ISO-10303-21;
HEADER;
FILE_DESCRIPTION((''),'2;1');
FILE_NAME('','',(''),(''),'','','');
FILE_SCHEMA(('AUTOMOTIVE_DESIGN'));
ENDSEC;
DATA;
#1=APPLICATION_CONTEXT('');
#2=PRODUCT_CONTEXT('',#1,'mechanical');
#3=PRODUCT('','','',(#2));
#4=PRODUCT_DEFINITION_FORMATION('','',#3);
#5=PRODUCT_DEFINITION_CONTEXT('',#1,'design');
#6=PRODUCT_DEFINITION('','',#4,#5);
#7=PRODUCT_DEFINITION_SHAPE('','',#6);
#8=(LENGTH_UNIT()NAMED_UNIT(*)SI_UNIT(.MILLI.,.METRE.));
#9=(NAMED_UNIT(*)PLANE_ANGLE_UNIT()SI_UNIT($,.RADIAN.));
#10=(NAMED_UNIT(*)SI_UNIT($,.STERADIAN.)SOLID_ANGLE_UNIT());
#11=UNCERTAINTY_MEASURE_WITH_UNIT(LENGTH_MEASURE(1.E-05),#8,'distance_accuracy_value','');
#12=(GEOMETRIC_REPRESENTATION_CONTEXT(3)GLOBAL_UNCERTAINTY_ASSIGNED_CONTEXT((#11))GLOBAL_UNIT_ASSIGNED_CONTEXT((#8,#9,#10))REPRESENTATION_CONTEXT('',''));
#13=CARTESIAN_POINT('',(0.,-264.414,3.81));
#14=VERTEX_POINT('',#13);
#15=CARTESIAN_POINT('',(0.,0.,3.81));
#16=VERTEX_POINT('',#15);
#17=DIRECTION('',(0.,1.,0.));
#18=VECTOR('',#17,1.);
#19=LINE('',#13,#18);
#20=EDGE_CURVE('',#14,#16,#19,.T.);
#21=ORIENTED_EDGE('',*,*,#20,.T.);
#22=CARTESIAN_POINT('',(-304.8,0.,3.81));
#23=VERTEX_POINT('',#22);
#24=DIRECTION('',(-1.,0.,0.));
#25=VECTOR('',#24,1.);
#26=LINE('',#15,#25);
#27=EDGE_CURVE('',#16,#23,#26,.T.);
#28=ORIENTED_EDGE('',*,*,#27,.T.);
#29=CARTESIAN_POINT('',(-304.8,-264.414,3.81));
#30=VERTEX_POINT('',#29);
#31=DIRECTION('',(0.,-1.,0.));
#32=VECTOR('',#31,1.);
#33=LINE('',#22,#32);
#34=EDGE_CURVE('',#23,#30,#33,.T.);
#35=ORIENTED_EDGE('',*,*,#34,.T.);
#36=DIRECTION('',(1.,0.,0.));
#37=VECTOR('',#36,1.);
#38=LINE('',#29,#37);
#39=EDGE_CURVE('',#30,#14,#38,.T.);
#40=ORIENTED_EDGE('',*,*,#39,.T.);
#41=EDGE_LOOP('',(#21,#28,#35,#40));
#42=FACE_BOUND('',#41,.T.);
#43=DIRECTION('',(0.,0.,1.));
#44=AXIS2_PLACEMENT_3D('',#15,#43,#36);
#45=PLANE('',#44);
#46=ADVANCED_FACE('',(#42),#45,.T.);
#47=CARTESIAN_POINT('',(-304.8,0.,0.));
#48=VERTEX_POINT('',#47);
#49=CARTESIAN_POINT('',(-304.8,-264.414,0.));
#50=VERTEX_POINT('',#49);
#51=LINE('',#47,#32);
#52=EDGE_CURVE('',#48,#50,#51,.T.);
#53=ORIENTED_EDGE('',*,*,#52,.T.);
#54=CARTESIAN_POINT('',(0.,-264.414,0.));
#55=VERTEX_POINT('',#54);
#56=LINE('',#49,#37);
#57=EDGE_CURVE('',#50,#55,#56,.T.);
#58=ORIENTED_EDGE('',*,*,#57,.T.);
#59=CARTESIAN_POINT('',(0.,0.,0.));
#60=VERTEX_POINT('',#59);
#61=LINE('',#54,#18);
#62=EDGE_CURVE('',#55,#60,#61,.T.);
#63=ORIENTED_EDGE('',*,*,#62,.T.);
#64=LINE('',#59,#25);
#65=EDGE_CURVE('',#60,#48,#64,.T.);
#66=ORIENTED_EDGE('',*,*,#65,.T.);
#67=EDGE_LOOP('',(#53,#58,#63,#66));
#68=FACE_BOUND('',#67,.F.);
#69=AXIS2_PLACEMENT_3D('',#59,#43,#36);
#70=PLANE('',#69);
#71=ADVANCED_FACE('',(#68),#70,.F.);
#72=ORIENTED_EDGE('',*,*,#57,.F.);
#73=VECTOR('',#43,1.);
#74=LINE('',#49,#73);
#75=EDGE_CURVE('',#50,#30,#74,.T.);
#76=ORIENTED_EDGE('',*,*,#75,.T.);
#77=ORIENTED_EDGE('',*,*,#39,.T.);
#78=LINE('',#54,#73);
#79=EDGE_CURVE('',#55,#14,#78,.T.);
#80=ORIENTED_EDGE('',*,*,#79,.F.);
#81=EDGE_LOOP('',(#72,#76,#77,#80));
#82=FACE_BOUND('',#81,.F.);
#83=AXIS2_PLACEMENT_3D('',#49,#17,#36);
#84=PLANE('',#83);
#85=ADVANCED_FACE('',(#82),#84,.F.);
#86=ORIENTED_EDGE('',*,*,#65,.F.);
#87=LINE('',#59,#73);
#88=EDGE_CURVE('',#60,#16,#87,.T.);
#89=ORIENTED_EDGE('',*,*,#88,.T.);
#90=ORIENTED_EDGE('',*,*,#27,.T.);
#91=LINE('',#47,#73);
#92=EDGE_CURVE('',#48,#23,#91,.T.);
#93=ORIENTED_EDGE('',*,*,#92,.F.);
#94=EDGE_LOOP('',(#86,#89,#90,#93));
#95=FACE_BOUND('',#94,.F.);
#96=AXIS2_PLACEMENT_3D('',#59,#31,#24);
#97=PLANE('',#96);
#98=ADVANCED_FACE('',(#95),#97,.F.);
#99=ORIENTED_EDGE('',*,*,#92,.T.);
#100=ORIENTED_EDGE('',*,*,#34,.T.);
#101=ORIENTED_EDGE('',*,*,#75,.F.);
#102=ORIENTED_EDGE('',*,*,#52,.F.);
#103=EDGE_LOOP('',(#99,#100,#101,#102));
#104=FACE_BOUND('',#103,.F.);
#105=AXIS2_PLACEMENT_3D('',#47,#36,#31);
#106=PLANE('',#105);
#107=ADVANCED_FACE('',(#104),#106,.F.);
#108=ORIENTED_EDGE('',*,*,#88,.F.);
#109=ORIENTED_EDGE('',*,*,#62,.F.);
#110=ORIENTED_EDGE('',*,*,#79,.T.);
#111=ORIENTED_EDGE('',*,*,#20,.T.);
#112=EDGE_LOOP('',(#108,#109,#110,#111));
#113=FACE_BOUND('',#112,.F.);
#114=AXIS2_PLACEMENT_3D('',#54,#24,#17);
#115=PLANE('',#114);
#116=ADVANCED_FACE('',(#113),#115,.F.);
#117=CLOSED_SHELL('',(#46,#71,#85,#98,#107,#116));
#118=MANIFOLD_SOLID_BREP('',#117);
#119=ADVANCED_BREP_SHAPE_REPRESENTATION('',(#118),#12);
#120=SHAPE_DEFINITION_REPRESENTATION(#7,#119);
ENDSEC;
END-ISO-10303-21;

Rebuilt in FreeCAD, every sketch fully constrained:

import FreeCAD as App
import Part
import Sketcher
Q = App.Units.Quantity


def add_polygon(sketch, points):
    """Adds a closed chain of lines whose ends are joined by coincident constraints."""
    first, n = sketch.GeometryCount, len(points)
    for a, b in zip(points, points[1:] + points[:1]):
        sketch.addGeometry(Part.LineSegment(App.Vector(*a, 0), App.Vector(*b, 0)), False)
    for i in range(n):
        sketch.addConstraint(Sketcher.Constraint("Coincident", first + i, 2, first + (i + 1) % n, 1))

doc = App.newDocument("Part")
body = doc.addObject("PartDesign::Body", "Body")

# Sketch on XY plane
sketch1 = doc.addObject("Sketcher::SketchObject", "Sketch")
body.addObject(sketch1)
sketch1.AttachmentSupport = (doc.XY_Plane, [""])
sketch1.MapMode = "FlatFace"
add_polygon(sketch1, [(0, -264), (0, 0), (-305, 0), (-305, -264)])  # lines 0-3
sketch1.addConstraint(Sketcher.Constraint("Vertical", 0))
sketch1.addConstraint(Sketcher.Constraint("Horizontal", 1))
sketch1.addConstraint(Sketcher.Constraint("Vertical", 2))
sketch1.addConstraint(Sketcher.Constraint("Horizontal", 3))
sketch1.addConstraint(Sketcher.Constraint("Coincident", 0, 2, -1, 1))
sketch1.addConstraint(Sketcher.Constraint("DistanceX", 1, 2, 1, 1, Q("12 in")))
sketch1.addConstraint(Sketcher.Constraint("DistanceY", 0, 1, 0, 2, Q("10.41 in")))
pad1 = doc.addObject("PartDesign::Pad", "Pad")
body.addObject(pad1)
pad1.Profile = sketch1
pad1.Length = Q("0.15 in")

doc.recompute()
